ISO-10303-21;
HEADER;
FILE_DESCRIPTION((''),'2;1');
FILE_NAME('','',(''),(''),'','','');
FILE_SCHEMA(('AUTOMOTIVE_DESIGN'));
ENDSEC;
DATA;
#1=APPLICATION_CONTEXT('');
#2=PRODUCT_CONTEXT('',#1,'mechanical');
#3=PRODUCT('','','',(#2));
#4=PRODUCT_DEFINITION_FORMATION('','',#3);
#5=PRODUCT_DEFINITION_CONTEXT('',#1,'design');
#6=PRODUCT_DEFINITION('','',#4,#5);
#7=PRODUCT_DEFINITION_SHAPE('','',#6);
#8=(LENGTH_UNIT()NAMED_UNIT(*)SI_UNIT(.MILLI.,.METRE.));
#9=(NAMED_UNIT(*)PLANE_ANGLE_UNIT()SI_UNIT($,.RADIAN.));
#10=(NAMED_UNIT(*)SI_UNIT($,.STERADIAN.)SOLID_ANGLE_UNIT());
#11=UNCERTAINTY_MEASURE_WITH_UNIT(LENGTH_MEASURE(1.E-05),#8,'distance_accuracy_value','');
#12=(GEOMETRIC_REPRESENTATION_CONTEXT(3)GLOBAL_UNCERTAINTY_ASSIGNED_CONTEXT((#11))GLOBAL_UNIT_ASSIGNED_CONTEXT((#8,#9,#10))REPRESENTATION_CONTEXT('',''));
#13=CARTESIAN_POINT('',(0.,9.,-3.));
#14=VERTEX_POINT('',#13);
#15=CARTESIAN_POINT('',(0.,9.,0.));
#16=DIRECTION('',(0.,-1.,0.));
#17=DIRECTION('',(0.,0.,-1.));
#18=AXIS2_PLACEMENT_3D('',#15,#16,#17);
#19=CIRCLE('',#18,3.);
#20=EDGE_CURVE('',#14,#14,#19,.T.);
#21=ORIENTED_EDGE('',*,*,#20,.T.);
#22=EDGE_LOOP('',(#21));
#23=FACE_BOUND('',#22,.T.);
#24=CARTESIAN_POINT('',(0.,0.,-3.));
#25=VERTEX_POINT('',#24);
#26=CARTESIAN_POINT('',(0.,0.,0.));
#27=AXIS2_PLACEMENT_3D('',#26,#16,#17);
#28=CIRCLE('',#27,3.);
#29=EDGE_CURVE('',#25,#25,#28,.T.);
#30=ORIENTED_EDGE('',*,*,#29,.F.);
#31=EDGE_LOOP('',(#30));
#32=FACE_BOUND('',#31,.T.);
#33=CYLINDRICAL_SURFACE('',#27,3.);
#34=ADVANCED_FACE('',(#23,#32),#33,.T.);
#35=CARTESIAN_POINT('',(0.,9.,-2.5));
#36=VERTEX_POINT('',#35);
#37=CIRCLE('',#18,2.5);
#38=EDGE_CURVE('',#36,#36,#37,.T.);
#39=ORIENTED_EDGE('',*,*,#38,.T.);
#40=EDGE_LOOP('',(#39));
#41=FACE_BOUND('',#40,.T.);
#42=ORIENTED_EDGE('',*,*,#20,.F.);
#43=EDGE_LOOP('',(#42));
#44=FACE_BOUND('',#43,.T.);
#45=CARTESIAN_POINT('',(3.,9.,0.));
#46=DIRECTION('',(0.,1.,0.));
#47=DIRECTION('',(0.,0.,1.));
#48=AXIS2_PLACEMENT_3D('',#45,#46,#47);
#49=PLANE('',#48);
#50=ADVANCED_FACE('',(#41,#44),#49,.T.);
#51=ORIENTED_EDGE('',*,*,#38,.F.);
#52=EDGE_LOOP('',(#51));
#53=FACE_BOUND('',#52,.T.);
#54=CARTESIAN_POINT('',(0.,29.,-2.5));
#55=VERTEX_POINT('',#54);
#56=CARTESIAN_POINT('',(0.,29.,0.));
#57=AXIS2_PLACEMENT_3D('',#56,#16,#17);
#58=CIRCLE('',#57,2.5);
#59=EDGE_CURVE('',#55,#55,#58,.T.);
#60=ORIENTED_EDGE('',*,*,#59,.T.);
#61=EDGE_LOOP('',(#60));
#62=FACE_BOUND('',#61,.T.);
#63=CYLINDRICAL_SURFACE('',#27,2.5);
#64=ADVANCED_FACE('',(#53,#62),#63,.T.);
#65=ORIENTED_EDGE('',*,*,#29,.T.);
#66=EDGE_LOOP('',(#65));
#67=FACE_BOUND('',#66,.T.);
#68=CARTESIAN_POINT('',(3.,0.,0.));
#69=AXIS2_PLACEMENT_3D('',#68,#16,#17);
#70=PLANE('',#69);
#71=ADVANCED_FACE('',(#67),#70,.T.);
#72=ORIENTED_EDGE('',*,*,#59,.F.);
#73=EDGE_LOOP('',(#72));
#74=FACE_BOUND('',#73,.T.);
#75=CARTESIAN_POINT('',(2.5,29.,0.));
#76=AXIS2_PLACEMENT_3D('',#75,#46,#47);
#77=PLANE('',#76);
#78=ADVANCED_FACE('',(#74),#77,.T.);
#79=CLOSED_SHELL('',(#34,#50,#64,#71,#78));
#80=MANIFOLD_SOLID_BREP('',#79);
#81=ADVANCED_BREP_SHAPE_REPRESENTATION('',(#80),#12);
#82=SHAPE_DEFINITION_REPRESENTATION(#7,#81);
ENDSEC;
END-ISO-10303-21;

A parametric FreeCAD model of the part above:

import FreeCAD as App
import Part
import Sketcher

V = App.Vector
Q = App.Units.Quantity


def add_polygon(sketch, points):
    """Adds a closed chain of lines whose ends are joined by coincident constraints."""
    first, n = sketch.GeometryCount, len(points)
    for a, b in zip(points, points[1:] + points[:1]):
        sketch.addGeometry(Part.LineSegment(App.Vector(*a, 0), App.Vector(*b, 0)), False)
    for i in range(n):
        sketch.addConstraint(Sketcher.Constraint("Coincident", first + i, 2, first + (i + 1) % n, 1))

doc = App.newDocument("Part")
body = doc.addObject("PartDesign::Body", "Body")

# Sketch on XY plane
sketch1 = body.newObject("Sketcher::SketchObject", "Sketch")
sketch1.AttachmentSupport = (doc.getObject("XY_Plane"), [""])
sketch1.MapMode = "FlatFace"
add_polygon(sketch1, [(3, 0), (3, 9), (2.5, 9), (2.5, 29), (0, 29), (0, 0)])  # lines 0-5
sketch1.addConstraint(Sketcher.Constraint("Vertical", 0))
sketch1.addConstraint(Sketcher.Constraint("Horizontal", 1))
sketch1.addConstraint(Sketcher.Constraint("Vertical", 2))
sketch1.addConstraint(Sketcher.Constraint("Horizontal", 3))
sketch1.addConstraint(Sketcher.Constraint("Vertical", 4))
sketch1.addConstraint(Sketcher.Constraint("Horizontal", 5))
sketch1.addConstraint(Sketcher.Constraint("Coincident", 4, 2, -1, 1))
sketch1.addConstraint(Sketcher.Constraint("DistanceX", 5, 1, 5, 2, Q("3 mm")))
sketch1.addConstraint(Sketcher.Constraint("DistanceY", 0, 1, 0, 2, Q("9 mm")))
sketch1.addConstraint(Sketcher.Constraint("DistanceY", 2, 1, 2, 2, Q("20 mm")))
sketch1.addConstraint(Sketcher.Constraint("DistanceX", 1, 2, 1, 1, Q("0.5 mm")))
revolution = body.newObject("PartDesign::Revolution", "Revolution")
revolution.Profile = sketch1
revolution.ReferenceAxis = (sketch1, ["V_Axis"])
revolution.Angle = 360

doc.recompute()
